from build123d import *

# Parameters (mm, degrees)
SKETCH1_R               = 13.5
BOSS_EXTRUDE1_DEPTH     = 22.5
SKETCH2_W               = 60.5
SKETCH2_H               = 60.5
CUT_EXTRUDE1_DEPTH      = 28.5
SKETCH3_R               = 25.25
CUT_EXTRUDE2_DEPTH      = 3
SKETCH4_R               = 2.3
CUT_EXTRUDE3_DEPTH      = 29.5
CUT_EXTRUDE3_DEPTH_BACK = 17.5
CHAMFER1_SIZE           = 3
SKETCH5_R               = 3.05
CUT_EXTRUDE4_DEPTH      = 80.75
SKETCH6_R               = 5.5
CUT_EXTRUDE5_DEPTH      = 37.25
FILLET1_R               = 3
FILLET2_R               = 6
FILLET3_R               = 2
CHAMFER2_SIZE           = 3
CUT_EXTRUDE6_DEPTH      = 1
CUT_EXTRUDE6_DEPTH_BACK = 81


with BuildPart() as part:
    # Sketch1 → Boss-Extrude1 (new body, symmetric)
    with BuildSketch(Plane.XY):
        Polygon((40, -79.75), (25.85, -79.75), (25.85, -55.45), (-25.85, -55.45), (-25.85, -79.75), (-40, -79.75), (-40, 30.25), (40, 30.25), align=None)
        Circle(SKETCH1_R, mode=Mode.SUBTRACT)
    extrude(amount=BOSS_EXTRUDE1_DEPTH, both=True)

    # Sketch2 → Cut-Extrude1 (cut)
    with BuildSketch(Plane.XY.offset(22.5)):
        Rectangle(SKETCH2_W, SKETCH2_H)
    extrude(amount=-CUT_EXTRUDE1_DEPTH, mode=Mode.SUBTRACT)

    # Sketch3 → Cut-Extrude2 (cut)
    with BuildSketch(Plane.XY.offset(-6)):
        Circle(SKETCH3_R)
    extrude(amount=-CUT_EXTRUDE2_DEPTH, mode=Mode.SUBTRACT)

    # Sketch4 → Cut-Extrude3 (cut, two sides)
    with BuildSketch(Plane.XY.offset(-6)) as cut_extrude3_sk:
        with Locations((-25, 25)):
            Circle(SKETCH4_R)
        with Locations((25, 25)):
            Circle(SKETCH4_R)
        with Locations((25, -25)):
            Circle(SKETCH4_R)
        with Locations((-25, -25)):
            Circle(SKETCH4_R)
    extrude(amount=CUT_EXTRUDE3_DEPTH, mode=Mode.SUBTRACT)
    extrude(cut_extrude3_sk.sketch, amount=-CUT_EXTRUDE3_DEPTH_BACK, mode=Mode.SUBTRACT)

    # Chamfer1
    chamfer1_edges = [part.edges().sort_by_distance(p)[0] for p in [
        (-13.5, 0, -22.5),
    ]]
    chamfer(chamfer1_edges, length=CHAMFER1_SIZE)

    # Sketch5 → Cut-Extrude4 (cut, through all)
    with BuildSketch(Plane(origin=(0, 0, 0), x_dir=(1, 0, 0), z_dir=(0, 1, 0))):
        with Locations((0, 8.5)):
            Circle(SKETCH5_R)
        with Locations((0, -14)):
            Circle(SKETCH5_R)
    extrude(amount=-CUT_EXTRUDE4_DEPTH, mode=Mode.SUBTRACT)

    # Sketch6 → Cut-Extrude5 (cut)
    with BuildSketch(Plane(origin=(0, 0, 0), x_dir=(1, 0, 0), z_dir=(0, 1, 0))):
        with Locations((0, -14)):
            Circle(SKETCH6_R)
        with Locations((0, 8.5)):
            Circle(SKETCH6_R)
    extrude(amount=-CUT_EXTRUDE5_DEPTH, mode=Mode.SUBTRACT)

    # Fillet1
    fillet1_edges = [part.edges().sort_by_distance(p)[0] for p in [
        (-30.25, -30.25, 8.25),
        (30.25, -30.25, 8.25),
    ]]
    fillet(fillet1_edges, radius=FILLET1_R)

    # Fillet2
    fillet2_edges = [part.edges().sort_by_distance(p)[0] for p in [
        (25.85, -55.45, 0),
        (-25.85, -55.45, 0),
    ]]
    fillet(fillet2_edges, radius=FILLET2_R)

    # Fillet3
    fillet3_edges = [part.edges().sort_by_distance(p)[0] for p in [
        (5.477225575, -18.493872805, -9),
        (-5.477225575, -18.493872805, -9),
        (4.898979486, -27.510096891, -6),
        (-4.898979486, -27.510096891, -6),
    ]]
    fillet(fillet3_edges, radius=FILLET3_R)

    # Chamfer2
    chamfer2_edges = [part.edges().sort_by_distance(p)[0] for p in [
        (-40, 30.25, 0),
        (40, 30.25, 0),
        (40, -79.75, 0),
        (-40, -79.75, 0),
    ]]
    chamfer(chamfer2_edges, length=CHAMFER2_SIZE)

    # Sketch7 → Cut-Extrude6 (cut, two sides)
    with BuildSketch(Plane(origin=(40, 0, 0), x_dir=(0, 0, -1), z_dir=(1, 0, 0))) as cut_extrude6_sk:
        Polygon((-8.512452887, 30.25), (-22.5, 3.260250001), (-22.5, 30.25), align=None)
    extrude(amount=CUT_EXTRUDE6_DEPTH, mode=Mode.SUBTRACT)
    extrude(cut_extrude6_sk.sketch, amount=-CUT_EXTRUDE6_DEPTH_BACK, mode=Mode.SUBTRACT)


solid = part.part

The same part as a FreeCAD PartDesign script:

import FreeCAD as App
import Part
import Sketcher

V = App.Vector


def edges_at(feature, points):
    """Names of the edges that pass closest to the given points."""
    edges = feature.Shape.Edges
    near = lambda p: min(range(len(edges)), key=lambda i: edges[i].distToShape(Part.Vertex(*p))[0])
    return sorted({f"Edge{near(p) + 1}" for p in points})


def add_polygon(sketch, points):
    """Adds a closed chain of lines whose ends are joined by coincident constraints."""
    first, n = sketch.GeometryCount, len(points)
    for a, b in zip(points, points[1:] + points[:1]):
        sketch.addGeometry(Part.LineSegment(App.Vector(*a, 0), App.Vector(*b, 0)), False)
    for i in range(n):
        sketch.addConstraint(Sketcher.Constraint("Coincident", first + i, 2, first + (i + 1) % n, 1))

doc = App.newDocument("Part")
body = doc.addObject("PartDesign::Body", "Body")

sketch1 = doc.addObject("Sketcher::SketchObject", "Sketch")
body.addObject(sketch1)
sketch1.AttachmentSupport = (doc.XY_Plane, [""])
sketch1.MapMode = "FlatFace"
add_polygon(sketch1, [(25.85, -79.75), (40, -79.75), (40, 30.25), (-40, 30.25), (-40, -79.75), (-25.85, -79.75), (-25.85, -55.45), (25.85, -55.45)])
sketch1.addGeometry(Part.Circle(V(0, 0, 0), V(0, 0, 1), 13.5), False)
sketch1.addConstraint(Sketcher.Constraint("Horizontal", 0))
sketch1.addConstraint(Sketcher.Constraint("Vertical", 1))
sketch1.addConstraint(Sketcher.Constraint("Horizontal", 2))
sketch1.addConstraint(Sketcher.Constraint("Vertical", 3))
sketch1.addConstraint(Sketcher.Constraint("Horizontal", 4))
sketch1.addConstraint(Sketcher.Constraint("Vertical", 5))
sketch1.addConstraint(Sketcher.Constraint("Horizontal", 6))
sketch1.addConstraint(Sketcher.Constraint("Vertical", 7))
sketch1.addConstraint(Sketcher.Constraint("Coincident", 8, 3, -1, 1))
sketch1.addConstraint(Sketcher.Constraint("Symmetric", 0, 2, 3, 2, -2))
sketch1.addConstraint(Sketcher.Constraint("Equal", 0, 4))
sketch1.addConstraint(Sketcher.Constraint("Diameter", 8, 27.0))
sketch1.addConstraint(Sketcher.Constraint("DistanceX", 2, 2, 2, 1, 80.0))
sketch1.addConstraint(Sketcher.Constraint("DistanceY", 1, 1, 1, 2, 110.0))
sketch1.addConstraint(Sketcher.Constraint("DistanceX", 6, 1, 6, 2, 51.7))
sketch1.addConstraint(Sketcher.Constraint("DistanceY", 5, 1, 5, 2, 24.3))
sketch1.addConstraint(Sketcher.Constraint("DistanceY", 0, 2, -1, 1, 79.75))
pad1 = doc.addObject("PartDesign::Pad", "Pad")
body.addObject(pad1)
pad1.Profile = sketch1
pad1.Length = 45
pad1.Midplane = True

sketch2 = doc.addObject("Sketcher::SketchObject", "Sketch001")
body.addObject(sketch2)
sketch2.AttachmentSupport = (doc.XY_Plane, [""])
sketch2.MapMode = "FlatFace"
sketch2.AttachmentOffset = App.Placement(V(0, 0, 22.5), App.Rotation())
add_polygon(sketch2, [(-30.25, 30.25), (-30.25, -30.25), (30.25, -30.25), (30.25, 30.25)])
sketch2.addConstraint(Sketcher.Constraint("Vertical", 0))
sketch2.addConstraint(Sketcher.Constraint("Horizontal", 1))
sketch2.addConstraint(Sketcher.Constraint("Vertical", 2))
sketch2.addConstraint(Sketcher.Constraint("Horizontal", 3))
sketch2.addConstraint(Sketcher.Constraint("Symmetric", 0, 2, 2, 2, -1, 1))
sketch2.addConstraint(Sketcher.Constraint("Equal", 3, 0))
sketch2.addConstraint(Sketcher.Constraint("DistanceX", 1, 1, 1, 2, 60.5))
pocket1 = doc.addObject("PartDesign::Pocket", "Pocket")
body.addObject(pocket1)
pocket1.Profile = sketch2
pocket1.Length = 28.5

sketch3 = doc.addObject("Sketcher::SketchObject", "Sketch002")
body.addObject(sketch3)
sketch3.AttachmentSupport = (doc.XY_Plane, [""])
sketch3.MapMode = "FlatFace"
sketch3.AttachmentOffset = App.Placement(V(0, 0, -6), App.Rotation())
sketch3.addGeometry(Part.Circle(V(0, 0, 0), V(0, 0, 1), 25.25), False)
sketch3.addConstraint(Sketcher.Constraint("Coincident", 0, 3, -1, 1))
sketch3.addConstraint(Sketcher.Constraint("Diameter", 0, 50.5))
pocket2 = doc.addObject("PartDesign::Pocket", "Pocket001")
body.addObject(pocket2)
pocket2.Profile = sketch3
pocket2.Length = 3

sketch4 = doc.addObject("Sketcher::SketchObject", "Sketch003")
body.addObject(sketch4)
sketch4.AttachmentSupport = (doc.XY_Plane, [""])
sketch4.MapMode = "FlatFace"
sketch4.AttachmentOffset = App.Placement(V(0, 0, -6), App.Rotation())
sketch4.addGeometry(Part.Circle(V(-25, 25, 0), V(0, 0, 1), 2.3), False)
sketch4.addGeometry(Part.Circle(V(25, 25, 0), V(0, 0, 1), 2.3), False)
sketch4.addGeometry(Part.Circle(V(25, -25, 0), V(0, 0, 1), 2.3), False)
sketch4.addGeometry(Part.Circle(V(-25, -25, 0), V(0, 0, 1), 2.3), False)
sketch4.addConstraint(Sketcher.Constraint("Equal", 0, 1))
sketch4.addConstraint(Sketcher.Constraint("Equal", 1, 2))
sketch4.addConstraint(Sketcher.Constraint("Equal", 2, 3))
sketch4.addConstraint(Sketcher.Constraint("Symmetric", 0, 3, 2, 3, -1, 1))
sketch4.addConstraint(Sketcher.Constraint("Symmetric", 1, 3, 3, 3, -1, 1))
sketch4.addConstraint(Sketcher.Constraint("Symmetric", 0, 3, 1, 3, -2))
sketch4.addConstraint(Sketcher.Constraint("Diameter", 0, 4.6))
sketch4.addConstraint(Sketcher.Constraint("DistanceX", 0, 3, -1, 1, 25.0))
sketch4.addConstraint(Sketcher.Constraint("DistanceY", -1, 1, 0, 3, 25.0))
pocket3 = doc.addObject("PartDesign::Pocket", "Pocket002")
body.addObject(pocket3)
pocket3.Profile = sketch4
pocket3.Type = "ThroughAll"
pocket3.Midplane = True
doc.recompute()

chamfer = doc.addObject("PartDesign::Chamfer", "Chamfer")
body.addObject(chamfer)
chamfer.Base = (pocket3, edges_at(pocket3, [(-13.5, 0, -22.5)]))
chamfer.Size = 3

sketch5 = doc.addObject("Sketcher::SketchObject", "Sketch004")
body.addObject(sketch5)
sketch5.AttachmentSupport = (doc.XZ_Plane, [""])
sketch5.MapMode = "FlatFace"
sketch5.addGeometry(Part.Circle(V(0, -8.5, 0), V(0, 0, 1), 3.05), False)
sketch5.addGeometry(Part.Circle(V(0, 14, 0), V(0, 0, 1), 3.05), False)
sketch5.addConstraint(Sketcher.Constraint("Equal", 0, 1))
sketch5.addConstraint(Sketcher.Constraint("PointOnObject", 0, 3, -2))
sketch5.addConstraint(Sketcher.Constraint("PointOnObject", 1, 3, -2))
sketch5.addConstraint(Sketcher.Constraint("Diameter", 0, 6.1))
sketch5.addConstraint(Sketcher.Constraint("DistanceY", -1, 1, 1, 3, 14.0))
sketch5.addConstraint(Sketcher.Constraint("DistanceY", 0, 3, -1, 1, 8.5))
pocket4 = doc.addObject("PartDesign::Pocket", "Pocket003")
body.addObject(pocket4)
pocket4.Profile = sketch5
pocket4.Type = "ThroughAll"
pocket4.Reversed = True

sketch6 = doc.addObject("Sketcher::SketchObject", "Sketch005")
body.addObject(sketch6)
sketch6.AttachmentSupport = (doc.XZ_Plane, [""])
sketch6.MapMode = "FlatFace"
sketch6.addGeometry(Part.Circle(V(0, 14, 0), V(0, 0, 1), 5.5), False)
sketch6.addGeometry(Part.Circle(V(0, -8.5, 0), V(0, 0, 1), 5.5), False)
sketch6.addConstraint(Sketcher.Constraint("Equal", 0, 1))
sketch6.addConstraint(Sketcher.Constraint("PointOnObject", 0, 3, -2))
sketch6.addConstraint(Sketcher.Constraint("PointOnObject", 1, 3, -2))
sketch6.addConstraint(Sketcher.Constraint("Diameter", 0, 11.0))
sketch6.addConstraint(Sketcher.Constraint("DistanceY", -1, 1, 0, 3, 14.0))
sketch6.addConstraint(Sketcher.Constraint("DistanceY", 1, 3, -1, 1, 8.5))
pocket5 = doc.addObject("PartDesign::Pocket", "Pocket004")
body.addObject(pocket5)
pocket5.Profile = sketch6
pocket5.Length = 37.25
pocket5.Reversed = True
doc.recompute()

fillet = doc.addObject("PartDesign::Fillet", "Fillet")
body.addObject(fillet)
fillet.Base = (pocket5, edges_at(pocket5, [(-30.25, -30.25, 8.25), (30.25, -30.25, 8.25)]))
fillet.Radius = 3
doc.recompute()

fillet2 = doc.addObject("PartDesign::Fillet", "Fillet001")
body.addObject(fillet2)
fillet2.Base = (fillet, edges_at(fillet, [(25.85, -55.45, 0), (-25.85, -55.45, 0)]))
fillet2.Radius = 6
doc.recompute()

fillet3 = doc.addObject("PartDesign::Fillet", "Fillet002")
body.addObject(fillet3)
fillet3.Base = (fillet2, edges_at(fillet2, [
    (5.477, -18.494, -9),
    (-5.477, -18.494, -9),
    (4.899, -27.51, -6),
    (-4.899, -27.51, -6),
]))
fillet3.Radius = 2
doc.recompute()

chamfer2 = doc.addObject("PartDesign::Chamfer", "Chamfer001")
body.addObject(chamfer2)
chamfer2.Base = (fillet3, edges_at(fillet3, [
    (-40, 30.25, 0),
    (40, 30.25, 0),
    (40, -79.75, 0),
    (-40, -79.75, 0),
]))
chamfer2.Size = 3

sketch7 = doc.addObject("Sketcher::SketchObject", "Sketch006")
body.addObject(sketch7)
sketch7.AttachmentSupport = (doc.YZ_Plane, [""])
sketch7.MapMode = "FlatFace"
sketch7.AttachmentOffset = App.Placement(V(0, 0, 40), App.Rotation())
add_polygon(sketch7, [(3.26025, 22.5), (30.25, 8.512453), (30.25, 22.5)])
sketch7.addConstraint(Sketcher.Constraint("Vertical", 1))
sketch7.addConstraint(Sketcher.Constraint("Horizontal", 2))
sketch7.addConstraint(Sketcher.Constraint("DistanceY", -1, 1, 1, 2, 22.5))
sketch7.addConstraint(Sketcher.Constraint("DistanceX", -1, 1, 0, 2, 30.25))
sketch7.addConstraint(Sketcher.Constraint("DistanceX", 2, 2, 2, 1, 26.98975))
sketch7.addConstraint(Sketcher.Constraint("Distance", 0, 30.398982))
pocket6 = doc.addObject("PartDesign::Pocket", "Pocket005")
body.addObject(pocket6)
pocket6.Profile = sketch7
pocket6.Type = "ThroughAll"
pocket6.Midplane = True

doc.recompute()
